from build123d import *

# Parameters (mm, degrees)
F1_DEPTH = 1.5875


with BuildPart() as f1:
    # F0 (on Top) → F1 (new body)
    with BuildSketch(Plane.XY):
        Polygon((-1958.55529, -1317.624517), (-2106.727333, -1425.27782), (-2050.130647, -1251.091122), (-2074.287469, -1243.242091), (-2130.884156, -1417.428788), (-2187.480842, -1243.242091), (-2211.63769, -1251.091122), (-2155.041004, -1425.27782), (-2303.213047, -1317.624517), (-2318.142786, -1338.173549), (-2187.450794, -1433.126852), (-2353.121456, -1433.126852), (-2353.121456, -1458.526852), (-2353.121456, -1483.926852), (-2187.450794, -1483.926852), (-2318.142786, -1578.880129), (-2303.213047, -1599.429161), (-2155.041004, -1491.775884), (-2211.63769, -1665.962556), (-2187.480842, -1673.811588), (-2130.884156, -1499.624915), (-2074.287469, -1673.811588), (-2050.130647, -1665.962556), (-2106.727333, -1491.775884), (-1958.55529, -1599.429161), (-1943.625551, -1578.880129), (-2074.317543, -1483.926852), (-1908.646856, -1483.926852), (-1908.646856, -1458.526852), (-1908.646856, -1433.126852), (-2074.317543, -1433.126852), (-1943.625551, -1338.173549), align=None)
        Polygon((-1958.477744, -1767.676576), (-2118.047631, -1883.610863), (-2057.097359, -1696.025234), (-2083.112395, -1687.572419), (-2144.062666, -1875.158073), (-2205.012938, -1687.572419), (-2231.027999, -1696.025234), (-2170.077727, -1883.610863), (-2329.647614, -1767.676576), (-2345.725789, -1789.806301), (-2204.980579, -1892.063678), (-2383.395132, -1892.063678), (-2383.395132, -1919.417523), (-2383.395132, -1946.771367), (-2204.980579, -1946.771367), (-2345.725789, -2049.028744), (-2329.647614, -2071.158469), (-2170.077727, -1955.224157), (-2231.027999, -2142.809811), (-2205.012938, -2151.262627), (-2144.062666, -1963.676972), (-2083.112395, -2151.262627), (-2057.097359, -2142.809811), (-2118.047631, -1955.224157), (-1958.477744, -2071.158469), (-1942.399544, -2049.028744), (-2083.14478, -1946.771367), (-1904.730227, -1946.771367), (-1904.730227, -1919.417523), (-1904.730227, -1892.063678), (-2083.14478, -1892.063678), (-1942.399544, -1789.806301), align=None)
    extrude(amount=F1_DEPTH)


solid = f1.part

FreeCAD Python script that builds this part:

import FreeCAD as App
import Part
import Sketcher
from FreeCAD import Vector
Q = App.Units.Quantity


def add_polygon(sketch, points):
    """Adds a closed chain of lines whose ends are joined by coincident constraints."""
    first, n = sketch.GeometryCount, len(points)
    for a, b in zip(points, points[1:] + points[:1]):
        sketch.addGeometry(Part.LineSegment(App.Vector(*a, 0), App.Vector(*b, 0)), False)
    for i in range(n):
        sketch.addConstraint(Sketcher.Constraint("Coincident", first + i, 2, first + (i + 1) % n, 1))

doc = App.newDocument("Part")
body = doc.addObject("PartDesign::Body", "Body")
body.AllowCompound = True

# Sketch on XY plane
sketch1 = body.newObject("Sketcher::SketchObject", "Sketch")
sketch1.AttachmentSupport = (doc.getObject("XY_Plane"), [""])
sketch1.MapMode = "FlatFace"
add_polygon(sketch1, [(-1958.55529, -1317.624517), (-2106.727333, -1425.27782), (-2050.130647, -1251.091122), (-2074.287469, -1243.242091), (-2130.884156, -1417.428788), (-2187.480842, -1243.242091), (-2211.63769, -1251.091122), (-2155.041004, -1425.27782), (-2303.213047, -1317.624517), (-2318.142786, -1338.173549), (-2187.450794, -1433.126852), (-2353.121456, -1433.126852), (-2353.121456, -1483.926852), (-2187.450794, -1483.926852), (-2318.142786, -1578.880129), (-2303.213047, -1599.429161), (-2155.041004, -1491.775884), (-2211.63769, -1665.962556), (-2187.480842, -1673.811588), (-2130.884156, -1499.624915), (-2074.287469, -1673.811588), (-2050.130647, -1665.962556), (-2106.727333, -1491.775884), (-1958.55529, -1599.429161), (-1943.625551, -1578.880129), (-2074.317543, -1483.926852), (-1908.646856, -1483.926852), (-1908.646856, -1433.126852), (-2074.317543, -1433.126852), (-1943.625551, -1338.173549)])  # lines 0-29
add_polygon(sketch1, [(-1958.477744, -1767.676576), (-2118.047631, -1883.610863), (-2057.097359, -1696.025234), (-2083.112395, -1687.572419), (-2144.062666, -1875.158073), (-2205.012938, -1687.572419), (-2231.027999, -1696.025234), (-2170.077727, -1883.610863), (-2329.647614, -1767.676576), (-2345.725789, -1789.806301), (-2204.980579, -1892.063678), (-2383.395132, -1892.063678), (-2383.395132, -1946.771367), (-2204.980579, -1946.771367), (-2345.725789, -2049.028744), (-2329.647614, -2071.158469), (-2170.077727, -1955.224157), (-2231.027999, -2142.809811), (-2205.012938, -2151.262627), (-2144.062666, -1963.676972), (-2083.112395, -2151.262627), (-2057.097359, -2142.809811), (-2118.047631, -1955.224157), (-1958.477744, -2071.158469), (-1942.399544, -2049.028744), (-2083.14478, -1946.771367), (-1904.730227, -1946.771367), (-1904.730227, -1892.063678), (-2083.14478, -1892.063678), (-1942.399544, -1789.806301)])  # lines 30-59
sketch1.addConstraint(Sketcher.Constraint("Horizontal", 10))
sketch1.addConstraint(Sketcher.Constraint("Vertical", 11))
sketch1.addConstraint(Sketcher.Constraint("Horizontal", 12))
sketch1.addConstraint(Sketcher.Constraint("Horizontal", 25))
sketch1.addConstraint(Sketcher.Constraint("Vertical", 26))
sketch1.addConstraint(Sketcher.Constraint("Horizontal", 27))
sketch1.addConstraint(Sketcher.Constraint("Horizontal", 40))
sketch1.addConstraint(Sketcher.Constraint("Vertical", 41))
sketch1.addConstraint(Sketcher.Constraint("Horizontal", 42))
sketch1.addConstraint(Sketcher.Constraint("Horizontal", 55))
sketch1.addConstraint(Sketcher.Constraint("Vertical", 56))
sketch1.addConstraint(Sketcher.Constraint("Horizontal", 57))
sketch1.addConstraint(Sketcher.Constraint("Perpendicular", 1, 2))
sketch1.addConstraint(Sketcher.Constraint("Perpendicular", 2, 3))
sketch1.addConstraint(Sketcher.Constraint("Perpendicular", 4, 5))
sketch1.addConstraint(Sketcher.Constraint("Perpendicular", 5, 6))
sketch1.addConstraint(Sketcher.Constraint("Perpendicular", 7, 8))
sketch1.addConstraint(Sketcher.Constraint("Perpendicular", 8, 9))
sketch1.addConstraint(Sketcher.Constraint("Parallel", 0, 13))
sketch1.addConstraint(Sketcher.Constraint("Perpendicular", 13, 14))
sketch1.addConstraint(Sketcher.Constraint("Perpendicular", 14, 15))
sketch1.addConstraint(Sketcher.Constraint("Parallel", 3, 16))
sketch1.addConstraint(Sketcher.Constraint("Perpendicular", 16, 17))
sketch1.addConstraint(Sketcher.Constraint("Perpendicular", 17, 18))
sketch1.addConstraint(Sketcher.Constraint("Parallel", 6, 19))
sketch1.addConstraint(Sketcher.Constraint("Perpendicular", 19, 20))
sketch1.addConstraint(Sketcher.Constraint("Perpendicular", 20, 21))
sketch1.addConstraint(Sketcher.Constraint("Parallel", 9, 22))
sketch1.addConstraint(Sketcher.Constraint("Perpendicular", 22, 23))
sketch1.addConstraint(Sketcher.Constraint("Perpendicular", 23, 24))
sketch1.addConstraint(Sketcher.Constraint("Parallel", 15, 28))
sketch1.addConstraint(Sketcher.Constraint("Perpendicular", 28, 29))
sketch1.addConstraint(Sketcher.Constraint("Perpendicular", 29, 30))
sketch1.addConstraint(Sketcher.Constraint("Parallel", 18, 31))
sketch1.addConstraint(Sketcher.Constraint("Perpendicular", 31, 32))
sketch1.addConstraint(Sketcher.Constraint("Perpendicular", 32, 33))
sketch1.addConstraint(Sketcher.Constraint("Parallel", 21, 34))
sketch1.addConstraint(Sketcher.Constraint("Perpendicular", 34, 35))
sketch1.addConstraint(Sketcher.Constraint("Perpendicular", 35, 36))
sketch1.addConstraint(Sketcher.Constraint("Parallel", 24, 37))
sketch1.addConstraint(Sketcher.Constraint("Perpendicular", 37, 38))
sketch1.addConstraint(Sketcher.Constraint("Perpendicular", 38, 39))
sketch1.addConstraint(Sketcher.Constraint("Parallel", 30, 43))
sketch1.addConstraint(Sketcher.Constraint("Perpendicular", 43, 44))
sketch1.addConstraint(Sketcher.Constraint("Perpendicular", 44, 45))
sketch1.addConstraint(Sketcher.Constraint("Parallel", 33, 46))
sketch1.addConstraint(Sketcher.Constraint("Perpendicular", 46, 47))
sketch1.addConstraint(Sketcher.Constraint("Perpendicular", 47, 48))
sketch1.addConstraint(Sketcher.Constraint("Parallel", 36, 49))
sketch1.addConstraint(Sketcher.Constraint("Perpendicular", 49, 50))
sketch1.addConstraint(Sketcher.Constraint("Perpendicular", 50, 51))
sketch1.addConstraint(Sketcher.Constraint("Parallel", 39, 52))
sketch1.addConstraint(Sketcher.Constraint("Perpendicular", 52, 53))
sketch1.addConstraint(Sketcher.Constraint("Perpendicular", 53, 54))
sketch1.addConstraint(Sketcher.Constraint("Parallel", 45, 58))
sketch1.addConstraint(Sketcher.Constraint("Perpendicular", 58, 59))
sketch1.addConstraint(Sketcher.Constraint("Horizontal", 2, 2, 4, 2))
sketch1.addConstraint(Sketcher.Constraint("Horizontal", 1, 2, 5, 2))
sketch1.addConstraint(Sketcher.Constraint("Horizontal", 0, 2, 6, 2))
sketch1.addConstraint(Sketcher.Constraint("Horizontal", 17, 2, 19, 2))
sketch1.addConstraint(Sketcher.Constraint("Horizontal", 16, 2, 20, 2))
sketch1.addConstraint(Sketcher.Constraint("Horizontal", 15, 2, 21, 2))
sketch1.addConstraint(Sketcher.Constraint("Horizontal", 14, 2, 22, 2))
sketch1.addConstraint(Sketcher.Constraint("Horizontal", 13, 2, 23, 2))
sketch1.addConstraint(Sketcher.Constraint("Horizontal", 12, 2, 24, 2))
sketch1.addConstraint(Sketcher.Constraint("Horizontal", 10, 2, 26, 2))
sketch1.addConstraint(Sketcher.Constraint("Horizontal", 8, 2, 28, 2))
sketch1.addConstraint(Sketcher.Constraint("Horizontal", 7, 2, 29, 2))
sketch1.addConstraint(Sketcher.Constraint("Horizontal", 32, 2, 34, 2))
sketch1.addConstraint(Sketcher.Constraint("Horizontal", 31, 2, 35, 2))
sketch1.addConstraint(Sketcher.Constraint("Horizontal", 30, 2, 36, 2))
sketch1.addConstraint(Sketcher.Constraint("Horizontal", 47, 2, 49, 2))
sketch1.addConstraint(Sketcher.Constraint("Horizontal", 46, 2, 50, 2))
sketch1.addConstraint(Sketcher.Constraint("Horizontal", 45, 2, 51, 2))
sketch1.addConstraint(Sketcher.Constraint("Horizontal", 44, 2, 52, 2))
sketch1.addConstraint(Sketcher.Constraint("Horizontal", 43, 2, 53, 2))
sketch1.addConstraint(Sketcher.Constraint("Horizontal", 42, 2, 54, 2))
sketch1.addConstraint(Sketcher.Constraint("Horizontal", 40, 2, 56, 2))
sketch1.addConstraint(Sketcher.Constraint("Horizontal", 38, 2, 58, 2))
sketch1.addConstraint(Sketcher.Constraint("Horizontal", 37, 2, 59, 2))
sketch1.addConstraint(Sketcher.Constraint("Vertical", 9, 2, 12, 2))
sketch1.addConstraint(Sketcher.Constraint("Vertical", 8, 2, 13, 2))
sketch1.addConstraint(Sketcher.Constraint("Vertical", 7, 2, 14, 2))
sketch1.addConstraint(Sketcher.Constraint("Vertical", 6, 2, 15, 2))
sketch1.addConstraint(Sketcher.Constraint("Vertical", 5, 2, 16, 2))
sketch1.addConstraint(Sketcher.Constraint("Vertical", 4, 2, 17, 2))
sketch1.addConstraint(Sketcher.Constraint("Vertical", 3, 2, 18, 2))
sketch1.addConstraint(Sketcher.Constraint("Vertical", 2, 2, 19, 2))
sketch1.addConstraint(Sketcher.Constraint("Vertical", 24, 2, 27, 2))
sketch1.addConstraint(Sketcher.Constraint("Vertical", 39, 2, 42, 2))
sketch1.addConstraint(Sketcher.Constraint("Vertical", 38, 2, 43, 2))
sketch1.addConstraint(Sketcher.Constraint("Vertical", 37, 2, 44, 2))
sketch1.addConstraint(Sketcher.Constraint("Vertical", 36, 2, 45, 2))
sketch1.addConstraint(Sketcher.Constraint("Vertical", 35, 2, 46, 2))
sketch1.addConstraint(Sketcher.Constraint("Vertical", 34, 2, 47, 2))
sketch1.addConstraint(Sketcher.Constraint("Vertical", 33, 2, 48, 2))
sketch1.addConstraint(Sketcher.Constraint("Equal", 42, 55))
sketch1.addConstraint(Sketcher.Constraint("Equal", 1, 3))
sketch1.addConstraint(Sketcher.Constraint("Equal", 15, 18))
sketch1.addConstraint(Sketcher.Constraint("Equal", 34, 45))
sketch1.addConstraint(Sketcher.Constraint("Equal", 45, 46))
sketch1.addConstraint(Sketcher.Constraint("DistanceY", 11, 2, 11, 1, Q("2 in")))
sketch1.addConstraint(Sketcher.Constraint("Distance", 8, Q("0.9999999 in")))
sketch1.addConstraint(Sketcher.Constraint("Angle", 0, Q("-143.999997 deg")))
sketch1.addConstraint(Sketcher.Constraint("Angle", 1, Q("72.000001 deg")))
sketch1.addConstraint(Sketcher.Constraint("DistanceX", 52, 2, 53, 2, Q("0.633 in")))
sketch1.addConstraint(Sketcher.Constraint("DistanceY", 0, 2, -1, 1, Q("56.1133 in")))
sketch1.addConstraint(Sketcher.Constraint("DistanceX", 10, 2, 3, 2, Q("8.7495 in")))
sketch1.addConstraint(Sketcher.Constraint("DistanceX", 10, 2, 10, 1, Q("165.670662 mm")))
sketch1.addConstraint(Sketcher.Constraint("DistanceY", 41, 2, 41, 1, Q("54.707689 mm")))
sketch1.addConstraint(Sketcher.Constraint("DistanceX", 35, 2, -1, 1, Q("2231.027999 mm")))
sketch1.addConstraint(Sketcher.Constraint("DistanceY", 38, 2, -1, 1, Q("1789.806301 mm")))
sketch1.addConstraint(Sketcher.Constraint("DistanceX", 38, 2, 16, 2, Q("134.088099 mm")))
sketch1.addConstraint(Sketcher.Constraint("DistanceY", 39, 2, 37, 2, Q("124.387102 mm")))
sketch1.addConstraint(Sketcher.Constraint("DistanceY", 48, 2, 33, 2, Q("88.518899 mm")))
sketch1.addConstraint(Sketcher.Constraint("Distance", 1, Q("183.150732 mm")))
sketch1.addConstraint(Sketcher.Constraint("Distance", 5, Q("25.400012 mm")))
sketch1.addConstraint(Sketcher.Constraint("Distance", 33, Q("197.239228 mm")))
sketch1.addConstraint(Sketcher.Constraint("DistanceX", 25, 1, 25, 2, Q("165.670687 mm")))
sketch1.addConstraint(Sketcher.Constraint("DistanceX", 40, 2, 40, 1, Q("178.414553 mm")))
pad1 = body.newObject("PartDesign::Pad", "Pad")
pad1.Profile = sketch1
pad1.Length = Q("0.0625 in")

doc.recompute()
